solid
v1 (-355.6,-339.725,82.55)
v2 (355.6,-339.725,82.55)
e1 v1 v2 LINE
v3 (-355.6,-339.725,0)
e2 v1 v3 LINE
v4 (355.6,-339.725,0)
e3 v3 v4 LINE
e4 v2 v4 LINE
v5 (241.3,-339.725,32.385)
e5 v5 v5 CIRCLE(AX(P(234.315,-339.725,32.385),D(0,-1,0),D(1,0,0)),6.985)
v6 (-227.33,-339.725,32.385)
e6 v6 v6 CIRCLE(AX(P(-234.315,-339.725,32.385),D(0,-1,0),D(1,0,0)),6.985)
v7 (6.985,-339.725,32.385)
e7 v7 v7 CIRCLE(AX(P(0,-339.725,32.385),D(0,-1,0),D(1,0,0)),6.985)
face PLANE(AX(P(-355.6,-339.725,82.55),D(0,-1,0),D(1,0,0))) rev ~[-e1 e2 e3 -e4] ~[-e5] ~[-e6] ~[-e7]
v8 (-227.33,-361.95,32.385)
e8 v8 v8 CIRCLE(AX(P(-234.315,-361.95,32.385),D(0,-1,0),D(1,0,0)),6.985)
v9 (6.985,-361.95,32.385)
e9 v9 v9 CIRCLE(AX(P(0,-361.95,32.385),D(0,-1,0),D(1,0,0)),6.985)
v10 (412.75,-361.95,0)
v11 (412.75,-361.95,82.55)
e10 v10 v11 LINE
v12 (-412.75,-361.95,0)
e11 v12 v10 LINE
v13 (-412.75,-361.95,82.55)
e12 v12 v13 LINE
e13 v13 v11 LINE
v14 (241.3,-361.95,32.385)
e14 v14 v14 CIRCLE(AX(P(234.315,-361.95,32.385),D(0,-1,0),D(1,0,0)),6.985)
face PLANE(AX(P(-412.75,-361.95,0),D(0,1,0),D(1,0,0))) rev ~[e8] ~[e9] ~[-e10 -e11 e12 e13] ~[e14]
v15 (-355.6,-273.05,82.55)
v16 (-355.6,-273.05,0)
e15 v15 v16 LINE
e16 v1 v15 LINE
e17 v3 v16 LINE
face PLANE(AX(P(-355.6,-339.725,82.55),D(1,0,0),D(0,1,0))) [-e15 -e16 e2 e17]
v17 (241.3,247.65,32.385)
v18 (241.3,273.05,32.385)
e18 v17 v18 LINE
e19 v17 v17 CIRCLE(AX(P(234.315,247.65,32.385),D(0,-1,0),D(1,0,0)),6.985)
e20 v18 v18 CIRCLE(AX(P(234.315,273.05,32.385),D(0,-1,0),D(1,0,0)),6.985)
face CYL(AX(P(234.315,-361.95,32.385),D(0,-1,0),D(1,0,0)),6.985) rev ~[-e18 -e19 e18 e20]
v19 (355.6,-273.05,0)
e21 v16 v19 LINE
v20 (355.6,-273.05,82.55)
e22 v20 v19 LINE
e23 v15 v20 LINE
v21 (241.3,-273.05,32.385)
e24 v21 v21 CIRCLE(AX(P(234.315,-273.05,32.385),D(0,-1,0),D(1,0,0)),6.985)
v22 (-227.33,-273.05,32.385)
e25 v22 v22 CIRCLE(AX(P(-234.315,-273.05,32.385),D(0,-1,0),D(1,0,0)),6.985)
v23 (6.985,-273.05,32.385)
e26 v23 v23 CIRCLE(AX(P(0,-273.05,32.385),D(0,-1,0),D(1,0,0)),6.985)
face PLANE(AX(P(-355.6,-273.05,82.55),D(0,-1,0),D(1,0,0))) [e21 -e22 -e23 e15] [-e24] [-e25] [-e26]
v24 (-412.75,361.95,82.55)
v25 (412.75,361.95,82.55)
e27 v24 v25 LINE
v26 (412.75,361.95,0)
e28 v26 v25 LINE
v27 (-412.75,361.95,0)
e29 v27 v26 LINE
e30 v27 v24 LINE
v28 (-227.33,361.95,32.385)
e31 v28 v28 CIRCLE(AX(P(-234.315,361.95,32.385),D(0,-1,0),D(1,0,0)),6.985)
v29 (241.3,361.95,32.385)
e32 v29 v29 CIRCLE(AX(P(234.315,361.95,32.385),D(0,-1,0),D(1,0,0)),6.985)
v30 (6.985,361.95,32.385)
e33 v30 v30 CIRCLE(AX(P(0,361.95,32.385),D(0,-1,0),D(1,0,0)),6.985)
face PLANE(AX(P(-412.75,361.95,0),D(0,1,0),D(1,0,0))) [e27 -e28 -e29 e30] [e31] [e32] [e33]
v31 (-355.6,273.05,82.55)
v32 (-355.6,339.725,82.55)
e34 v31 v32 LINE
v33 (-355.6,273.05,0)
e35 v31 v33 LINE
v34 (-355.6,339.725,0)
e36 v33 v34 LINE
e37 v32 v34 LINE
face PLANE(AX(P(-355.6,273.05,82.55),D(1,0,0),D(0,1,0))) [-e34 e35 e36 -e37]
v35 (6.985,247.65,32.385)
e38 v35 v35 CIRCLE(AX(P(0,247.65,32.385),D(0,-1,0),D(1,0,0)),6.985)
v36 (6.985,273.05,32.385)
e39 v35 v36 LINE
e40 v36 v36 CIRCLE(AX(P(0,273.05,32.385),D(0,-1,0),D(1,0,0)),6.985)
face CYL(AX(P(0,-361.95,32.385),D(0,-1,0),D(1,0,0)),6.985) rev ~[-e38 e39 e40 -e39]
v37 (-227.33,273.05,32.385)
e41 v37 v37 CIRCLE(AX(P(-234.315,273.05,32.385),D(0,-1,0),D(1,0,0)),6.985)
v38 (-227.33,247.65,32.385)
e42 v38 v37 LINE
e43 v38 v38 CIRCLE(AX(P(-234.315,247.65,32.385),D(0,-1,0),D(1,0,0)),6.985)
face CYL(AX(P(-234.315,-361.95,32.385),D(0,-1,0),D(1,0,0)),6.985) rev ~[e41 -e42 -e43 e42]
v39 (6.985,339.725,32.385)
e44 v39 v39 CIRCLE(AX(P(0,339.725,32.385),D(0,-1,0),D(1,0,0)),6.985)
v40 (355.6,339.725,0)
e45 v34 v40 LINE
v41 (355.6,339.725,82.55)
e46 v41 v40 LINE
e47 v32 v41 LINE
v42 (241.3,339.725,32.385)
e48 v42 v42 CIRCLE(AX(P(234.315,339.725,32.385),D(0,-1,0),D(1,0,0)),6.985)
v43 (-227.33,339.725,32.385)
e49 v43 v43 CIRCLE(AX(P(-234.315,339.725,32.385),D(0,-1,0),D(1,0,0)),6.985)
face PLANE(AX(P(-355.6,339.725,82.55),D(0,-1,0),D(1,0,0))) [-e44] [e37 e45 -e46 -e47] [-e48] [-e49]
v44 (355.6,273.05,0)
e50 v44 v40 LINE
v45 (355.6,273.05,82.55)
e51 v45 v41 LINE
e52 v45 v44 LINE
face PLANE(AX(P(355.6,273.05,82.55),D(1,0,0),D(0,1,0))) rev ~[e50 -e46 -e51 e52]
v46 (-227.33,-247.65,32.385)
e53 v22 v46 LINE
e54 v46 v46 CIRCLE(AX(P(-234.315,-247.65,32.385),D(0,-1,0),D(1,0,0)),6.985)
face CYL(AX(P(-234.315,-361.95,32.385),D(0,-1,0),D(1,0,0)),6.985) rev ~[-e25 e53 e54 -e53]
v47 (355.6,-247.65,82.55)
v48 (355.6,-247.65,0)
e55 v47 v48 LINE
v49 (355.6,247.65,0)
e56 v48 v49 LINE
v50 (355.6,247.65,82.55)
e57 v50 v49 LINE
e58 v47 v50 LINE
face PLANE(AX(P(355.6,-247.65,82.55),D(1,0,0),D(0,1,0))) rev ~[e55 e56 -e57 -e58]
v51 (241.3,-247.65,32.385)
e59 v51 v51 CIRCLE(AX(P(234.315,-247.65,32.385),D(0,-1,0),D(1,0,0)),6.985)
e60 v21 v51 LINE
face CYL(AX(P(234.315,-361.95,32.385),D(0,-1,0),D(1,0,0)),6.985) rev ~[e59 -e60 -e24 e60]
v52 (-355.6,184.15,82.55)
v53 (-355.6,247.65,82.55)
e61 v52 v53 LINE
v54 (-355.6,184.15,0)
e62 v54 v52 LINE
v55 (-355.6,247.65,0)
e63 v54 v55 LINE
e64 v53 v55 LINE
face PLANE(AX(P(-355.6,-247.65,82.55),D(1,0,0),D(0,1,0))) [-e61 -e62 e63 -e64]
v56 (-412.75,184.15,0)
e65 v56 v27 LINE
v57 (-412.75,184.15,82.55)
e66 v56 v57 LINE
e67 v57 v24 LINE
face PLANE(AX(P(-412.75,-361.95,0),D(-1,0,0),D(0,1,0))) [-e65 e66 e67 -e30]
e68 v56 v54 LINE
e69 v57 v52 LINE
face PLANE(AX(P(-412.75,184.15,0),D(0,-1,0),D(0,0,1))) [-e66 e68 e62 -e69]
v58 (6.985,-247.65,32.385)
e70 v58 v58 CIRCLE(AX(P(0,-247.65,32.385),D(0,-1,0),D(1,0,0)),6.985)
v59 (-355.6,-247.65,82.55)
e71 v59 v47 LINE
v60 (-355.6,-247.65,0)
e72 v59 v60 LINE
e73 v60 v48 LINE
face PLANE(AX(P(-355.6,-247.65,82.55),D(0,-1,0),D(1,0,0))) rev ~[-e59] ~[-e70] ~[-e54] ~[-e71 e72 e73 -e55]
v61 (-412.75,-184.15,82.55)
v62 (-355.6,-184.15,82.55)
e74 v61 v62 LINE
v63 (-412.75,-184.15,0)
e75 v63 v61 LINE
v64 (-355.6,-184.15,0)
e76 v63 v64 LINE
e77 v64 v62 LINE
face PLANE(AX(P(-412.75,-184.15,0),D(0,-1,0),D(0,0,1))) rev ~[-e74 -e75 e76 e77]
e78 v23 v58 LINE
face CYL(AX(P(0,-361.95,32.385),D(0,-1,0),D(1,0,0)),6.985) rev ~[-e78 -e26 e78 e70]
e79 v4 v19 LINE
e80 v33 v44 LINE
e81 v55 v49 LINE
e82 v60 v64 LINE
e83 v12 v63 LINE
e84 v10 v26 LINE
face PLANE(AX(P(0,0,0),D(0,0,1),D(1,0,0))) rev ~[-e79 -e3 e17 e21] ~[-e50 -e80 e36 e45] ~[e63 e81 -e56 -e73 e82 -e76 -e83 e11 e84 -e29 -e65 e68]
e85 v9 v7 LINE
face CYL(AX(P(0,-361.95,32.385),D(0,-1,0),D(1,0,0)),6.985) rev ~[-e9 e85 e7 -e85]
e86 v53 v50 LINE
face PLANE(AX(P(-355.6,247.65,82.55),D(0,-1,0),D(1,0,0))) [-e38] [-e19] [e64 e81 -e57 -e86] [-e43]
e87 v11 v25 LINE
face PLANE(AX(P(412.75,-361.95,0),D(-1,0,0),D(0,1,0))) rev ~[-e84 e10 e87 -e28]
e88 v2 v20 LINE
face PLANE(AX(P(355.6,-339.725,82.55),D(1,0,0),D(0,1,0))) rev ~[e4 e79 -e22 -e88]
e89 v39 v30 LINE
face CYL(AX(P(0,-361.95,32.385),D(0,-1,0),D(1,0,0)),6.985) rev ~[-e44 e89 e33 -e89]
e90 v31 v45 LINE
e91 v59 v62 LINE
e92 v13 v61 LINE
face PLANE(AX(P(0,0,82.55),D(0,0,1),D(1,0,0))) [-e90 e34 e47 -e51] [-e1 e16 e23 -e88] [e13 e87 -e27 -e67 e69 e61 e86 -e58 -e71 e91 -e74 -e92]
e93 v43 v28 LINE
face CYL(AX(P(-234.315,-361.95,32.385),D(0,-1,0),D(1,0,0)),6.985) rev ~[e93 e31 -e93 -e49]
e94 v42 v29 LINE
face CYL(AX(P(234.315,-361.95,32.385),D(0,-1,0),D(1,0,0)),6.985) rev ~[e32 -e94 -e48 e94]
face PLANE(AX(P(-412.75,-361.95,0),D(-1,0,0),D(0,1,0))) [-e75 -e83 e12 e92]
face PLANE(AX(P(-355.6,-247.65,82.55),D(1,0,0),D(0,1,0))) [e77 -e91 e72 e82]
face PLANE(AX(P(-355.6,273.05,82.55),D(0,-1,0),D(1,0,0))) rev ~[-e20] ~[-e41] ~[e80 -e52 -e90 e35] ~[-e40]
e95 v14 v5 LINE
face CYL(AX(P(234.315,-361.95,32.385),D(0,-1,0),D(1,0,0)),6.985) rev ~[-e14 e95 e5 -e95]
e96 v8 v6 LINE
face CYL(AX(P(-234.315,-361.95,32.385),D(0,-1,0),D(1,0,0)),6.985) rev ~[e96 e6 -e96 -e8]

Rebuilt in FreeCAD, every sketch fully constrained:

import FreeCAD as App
import Part
import Sketcher
Q = App.Units.Quantity

doc = App.newDocument("Part")
body = doc.addObject("PartDesign::Body", "Body")

sketch1 = doc.addObject("Sketcher::SketchObject", "Sketch")
body.addObject(sketch1)
sketch1.AttachmentSupport = (doc.XY_Plane, [""])
sketch1.MapMode = "FlatFace"
sketch1.addGeometry(Part.LineSegment(App.Vector(-413, 362, 0), App.Vector(-413, -362, 0)), False)
sketch1.addGeometry(Part.LineSegment(App.Vector(-413, -362, 0), App.Vector(413, -362, 0)), False)
sketch1.addGeometry(Part.LineSegment(App.Vector(413, -362, 0), App.Vector(413, 362, 0)), False)
sketch1.addGeometry(Part.LineSegment(App.Vector(413, 362, 0), App.Vector(-413, 362, 0)), False)
sketch1.addConstraint(Sketcher.Constraint("Coincident", 0, 2, 1, 1))
sketch1.addConstraint(Sketcher.Constraint("Coincident", 1, 2, 2, 1))
sketch1.addConstraint(Sketcher.Constraint("Coincident", 2, 2, 3, 1))
sketch1.addConstraint(Sketcher.Constraint("Coincident", 3, 2, 0, 1))
sketch1.addConstraint(Sketcher.Constraint("Vertical", 0))
sketch1.addConstraint(Sketcher.Constraint("Horizontal", 1))
sketch1.addConstraint(Sketcher.Constraint("Vertical", 2))
sketch1.addConstraint(Sketcher.Constraint("Horizontal", 3))
sketch1.addConstraint(Sketcher.Constraint("Symmetric", 0, 2, 2, 2, -1, 1))
sketch1.addConstraint(Sketcher.Constraint("DistanceX", 1, 1, 1, 2, Q("32.5 in")))
sketch1.addConstraint(Sketcher.Constraint("DistanceY", 0, 2, 0, 1, Q("28.5 in")))
pad1 = doc.addObject("PartDesign::Pad", "Pad")
body.addObject(pad1)
pad1.Profile = sketch1
pad1.Length = Q("3.25 in")

sketch2 = doc.addObject("Sketcher::SketchObject", "Sketch001")
body.addObject(sketch2)
sketch2.AttachmentSupport = (doc.XY_Plane, [""])
sketch2.MapMode = "FlatFace"
sketch2.AttachmentOffset = App.Placement(App.Vector(0, 0, 3.25 * 25.4), App.Rotation())
sketch2.addGeometry(Part.LineSegment(App.Vector(-356, 248, 0), App.Vector(-356, -248, 0)), False)
sketch2.addGeometry(Part.LineSegment(App.Vector(-356, -248, 0), App.Vector(356, -248, 0)), False)
sketch2.addGeometry(Part.LineSegment(App.Vector(356, -248, 0), App.Vector(356, 248, 0)), False)
sketch2.addGeometry(Part.LineSegment(App.Vector(356, 248, 0), App.Vector(-356, 248, 0)), False)
sketch2.addConstraint(Sketcher.Constraint("Coincident", 0, 2, 1, 1))
sketch2.addConstraint(Sketcher.Constraint("Coincident", 1, 2, 2, 1))
sketch2.addConstraint(Sketcher.Constraint("Coincident", 2, 2, 3, 1))
sketch2.addConstraint(Sketcher.Constraint("Coincident", 3, 2, 0, 1))
sketch2.addConstraint(Sketcher.Constraint("Vertical", 0))
sketch2.addConstraint(Sketcher.Constraint("Horizontal", 1))
sketch2.addConstraint(Sketcher.Constraint("Vertical", 2))
sketch2.addConstraint(Sketcher.Constraint("Horizontal", 3))
sketch2.addConstraint(Sketcher.Constraint("Symmetric", 0, 2, 2, 2, -1, 1))
sketch2.addConstraint(Sketcher.Constraint("DistanceX", 1, 1, 1, 2, Q("28 in")))
sketch2.addConstraint(Sketcher.Constraint("DistanceY", 0, 2, 0, 1, Q("19.5 in")))
pocket1 = doc.addObject("PartDesign::Pocket", "Pocket")
body.addObject(pocket1)
pocket1.Profile = sketch2
pocket1.Length = Q("3.25 in")

sketch3 = doc.addObject("Sketcher::SketchObject", "Sketch002")
body.addObject(sketch3)
sketch3.AttachmentSupport = (doc.XY_Plane, [""])
sketch3.MapMode = "FlatFace"
sketch3.AttachmentOffset = App.Placement(App.Vector(0, 0, 3.25 * 25.4), App.Rotation())
sketch3.addGeometry(Part.LineSegment(App.Vector(-356, 340, 0), App.Vector(-356, 273, 0)), False)
sketch3.addGeometry(Part.LineSegment(App.Vector(-356, 273, 0), App.Vector(356, 273, 0)), False)
sketch3.addGeometry(Part.LineSegment(App.Vector(356, 273, 0), App.Vector(356, 340, 0)), False)
sketch3.addGeometry(Part.LineSegment(App.Vector(356, 340, 0), App.Vector(-356, 340, 0)), False)
sketch3.addConstraint(Sketcher.Constraint("Coincident", 0, 2, 1, 1))
sketch3.addConstraint(Sketcher.Constraint("Coincident", 1, 2, 2, 1))
sketch3.addConstraint(Sketcher.Constraint("Coincident", 2, 2, 3, 1))
sketch3.addConstraint(Sketcher.Constraint("Coincident", 3, 2, 0, 1))
sketch3.addConstraint(Sketcher.Constraint("Vertical", 0))
sketch3.addConstraint(Sketcher.Constraint("Horizontal", 1))
sketch3.addConstraint(Sketcher.Constraint("Vertical", 2))
sketch3.addConstraint(Sketcher.Constraint("Horizontal", 3))
sketch3.addConstraint(Sketcher.Constraint("DistanceX", 1, 1, 1, 2, Q("28 in")))
sketch3.addConstraint(Sketcher.Constraint("DistanceX", 0, 2, -1, 1, Q("14 in")))
sketch3.addConstraint(Sketcher.Constraint("DistanceY", 0, 2, 0, 1, Q("2.625 in")))
sketch3.addConstraint(Sketcher.Constraint("DistanceY", -1, 1, 0, 2, Q("10.75 in")))
pocket2 = doc.addObject("PartDesign::Pocket", "Pocket001")
body.addObject(pocket2)
pocket2.Profile = sketch3
pocket2.Length = Q("3.25 in")

sketch4 = doc.addObject("Sketcher::SketchObject", "Sketch003")
body.addObject(sketch4)
sketch4.AttachmentSupport = (doc.XY_Plane, [""])
sketch4.MapMode = "FlatFace"
sketch4.AttachmentOffset = App.Placement(App.Vector(0, 0, 3.25 * 25.4), App.Rotation())
sketch4.addGeometry(Part.LineSegment(App.Vector(-356, -273, 0), App.Vector(-356, -340, 0)), False)
sketch4.addGeometry(Part.LineSegment(App.Vector(-356, -340, 0), App.Vector(356, -340, 0)), False)
sketch4.addGeometry(Part.LineSegment(App.Vector(356, -340, 0), App.Vector(356, -273, 0)), False)
sketch4.addGeometry(Part.LineSegment(App.Vector(356, -273, 0), App.Vector(-356, -273, 0)), False)
sketch4.addConstraint(Sketcher.Constraint("Coincident", 0, 2, 1, 1))
sketch4.addConstraint(Sketcher.Constraint("Coincident", 1, 2, 2, 1))
sketch4.addConstraint(Sketcher.Constraint("Coincident", 2, 2, 3, 1))
sketch4.addConstraint(Sketcher.Constraint("Coincident", 3, 2, 0, 1))
sketch4.addConstraint(Sketcher.Constraint("Vertical", 0))
sketch4.addConstraint(Sketcher.Constraint("Horizontal", 1))
sketch4.addConstraint(Sketcher.Constraint("Vertical", 2))
sketch4.addConstraint(Sketcher.Constraint("Horizontal", 3))
sketch4.addConstraint(Sketcher.Constraint("DistanceX", 1, 1, 1, 2, Q("28 in")))
sketch4.addConstraint(Sketcher.Constraint("DistanceX", 0, 2, -1, 1, Q("14 in")))
sketch4.addConstraint(Sketcher.Constraint("DistanceY", 0, 2, 0, 1, Q("2.625 in")))
sketch4.addConstraint(Sketcher.Constraint("DistanceY", 2, 2, -1, 1, Q("10.75 in")))
pocket3 = doc.addObject("PartDesign::Pocket", "Pocket002")
body.addObject(pocket3)
pocket3.Profile = sketch4
pocket3.Length = Q("3.25 in")

sketch5 = doc.addObject("Sketcher::SketchObject", "Sketch004")
body.addObject(sketch5)
sketch5.AttachmentSupport = (doc.YZ_Plane, [""])
sketch5.MapMode = "FlatFace"
sketch5.AttachmentOffset = App.Placement(App.Vector(0, 0, -16.25 * 25.4), App.Rotation())
sketch5.addGeometry(Part.LineSegment(App.Vector(184, 83, 0), App.Vector(184, 0, 0)), False)
sketch5.addGeometry(Part.LineSegment(App.Vector(184, 0, 0), App.Vector(-184, 0, 0)), False)
sketch5.addGeometry(Part.LineSegment(App.Vector(-184, 0, 0), App.Vector(-184, 83, 0)), False)
sketch5.addGeometry(Part.LineSegment(App.Vector(-184, 83, 0), App.Vector(184, 83, 0)), False)
sketch5.addConstraint(Sketcher.Constraint("Coincident", 0, 2, 1, 1))
sketch5.addConstraint(Sketcher.Constraint("Coincident", 1, 2, 2, 1))
sketch5.addConstraint(Sketcher.Constraint("Coincident", 2, 2, 3, 1))
sketch5.addConstraint(Sketcher.Constraint("Coincident", 3, 2, 0, 1))
sketch5.addConstraint(Sketcher.Constraint("Vertical", 0))
sketch5.addConstraint(Sketcher.Constraint("Horizontal", 1))
sketch5.addConstraint(Sketcher.Constraint("Vertical", 2))
sketch5.addConstraint(Sketcher.Constraint("Horizontal", 3))
sketch5.addConstraint(Sketcher.Constraint("Symmetric", 0, 2, 1, 2, -1, 1))
sketch5.addConstraint(Sketcher.Constraint("DistanceX", 1, 2, 1, 1, Q("14.5 in")))
sketch5.addConstraint(Sketcher.Constraint("DistanceY", 0, 2, 0, 1, Q("3.25 in")))
pocket4 = doc.addObject("PartDesign::Pocket", "Pocket003")
body.addObject(pocket4)
pocket4.Profile = sketch5
pocket4.Length = Q("2.25 in")
pocket4.Reversed = True

sketch6 = doc.addObject("Sketcher::SketchObject", "Sketch005")
body.addObject(sketch6)
sketch6.AttachmentSupport = (doc.XZ_Plane, [""])
sketch6.MapMode = "FlatFace"
sketch6.AttachmentOffset = App.Placement(App.Vector(0, 0, 14.25 * 25.4), App.Rotation())
sketch6.addGeometry(Part.Circle(App.Vector(0, 32, 0), App.Vector(0, 0, 1), 7), False)
sketch6.addGeometry(Part.Circle(App.Vector(234, 32, 0), App.Vector(0, 0, 1), 7), False)
sketch6.addGeometry(Part.Circle(App.Vector(-234, 32, 0), App.Vector(0, 0, 1), 7), False)
sketch6.addConstraint(Sketcher.Constraint("Equal", 0, 1))
sketch6.addConstraint(Sketcher.Constraint("Equal", 1, 2))
sketch6.addConstraint(Sketcher.Constraint("Symmetric", 1, 3, 2, 3, -2))
sketch6.addConstraint(Sketcher.Constraint("PointOnObject", 0, 3, -2))
sketch6.addConstraint(Sketcher.Constraint("Horizontal", 0, 3, 1, 3))
sketch6.addConstraint(Sketcher.Constraint("Diameter", 0, Q("0.55 in")))
sketch6.addConstraint(Sketcher.Constraint("DistanceX", 2, 3, 1, 3, Q("18.45 in")))
sketch6.addConstraint(Sketcher.Constraint("DistanceY", -1, 1, 0, 3, Q("1.275 in")))
pocket5 = doc.addObject("PartDesign::Pocket", "Pocket004")
body.addObject(pocket5)
pocket5.Profile = sketch6
pocket5.Length = Q("30 in")

doc.recompute()
